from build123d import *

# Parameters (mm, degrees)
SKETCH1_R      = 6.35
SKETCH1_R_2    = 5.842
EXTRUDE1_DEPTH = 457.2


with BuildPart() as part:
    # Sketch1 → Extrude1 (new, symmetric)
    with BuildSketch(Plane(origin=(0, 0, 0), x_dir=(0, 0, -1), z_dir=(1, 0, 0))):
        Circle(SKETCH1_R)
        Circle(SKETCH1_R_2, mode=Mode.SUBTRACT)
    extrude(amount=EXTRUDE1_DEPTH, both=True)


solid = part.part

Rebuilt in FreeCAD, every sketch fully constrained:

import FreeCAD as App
import Part
import Sketcher

V = App.Vector
Q = App.Units.Quantity

doc = App.newDocument("Part")
body = doc.addObject("PartDesign::Body", "Body")

sketch1 = body.newObject("Sketcher::SketchObject", "Sketch")
sketch1.AttachmentSupport = (doc.getObject("YZ_Plane"), [""])
sketch1.MapMode = "FlatFace"
sketch1.addGeometry([
    Part.Circle(V(0, 0, 0), V(0, 0, 1), 6),
    Part.Circle(V(0, 0, 0), V(0, 0, 1), 6),
], False)
sketch1.addConstraint([
    Sketcher.Constraint("Coincident", 0, 3, -1, 1),
    Sketcher.Constraint("Coincident", 1, 3, -1, 1),
    Sketcher.Constraint("Diameter", 0, Q("0.5 in")),
    Sketcher.Constraint("Diameter", 1, Q("0.46 in")),
])
pad1 = body.newObject("PartDesign::Pad", "Pad")
pad1.Profile = sketch1
pad1.Length = Q("36 in")
pad1.Midplane = True

doc.recompute()
